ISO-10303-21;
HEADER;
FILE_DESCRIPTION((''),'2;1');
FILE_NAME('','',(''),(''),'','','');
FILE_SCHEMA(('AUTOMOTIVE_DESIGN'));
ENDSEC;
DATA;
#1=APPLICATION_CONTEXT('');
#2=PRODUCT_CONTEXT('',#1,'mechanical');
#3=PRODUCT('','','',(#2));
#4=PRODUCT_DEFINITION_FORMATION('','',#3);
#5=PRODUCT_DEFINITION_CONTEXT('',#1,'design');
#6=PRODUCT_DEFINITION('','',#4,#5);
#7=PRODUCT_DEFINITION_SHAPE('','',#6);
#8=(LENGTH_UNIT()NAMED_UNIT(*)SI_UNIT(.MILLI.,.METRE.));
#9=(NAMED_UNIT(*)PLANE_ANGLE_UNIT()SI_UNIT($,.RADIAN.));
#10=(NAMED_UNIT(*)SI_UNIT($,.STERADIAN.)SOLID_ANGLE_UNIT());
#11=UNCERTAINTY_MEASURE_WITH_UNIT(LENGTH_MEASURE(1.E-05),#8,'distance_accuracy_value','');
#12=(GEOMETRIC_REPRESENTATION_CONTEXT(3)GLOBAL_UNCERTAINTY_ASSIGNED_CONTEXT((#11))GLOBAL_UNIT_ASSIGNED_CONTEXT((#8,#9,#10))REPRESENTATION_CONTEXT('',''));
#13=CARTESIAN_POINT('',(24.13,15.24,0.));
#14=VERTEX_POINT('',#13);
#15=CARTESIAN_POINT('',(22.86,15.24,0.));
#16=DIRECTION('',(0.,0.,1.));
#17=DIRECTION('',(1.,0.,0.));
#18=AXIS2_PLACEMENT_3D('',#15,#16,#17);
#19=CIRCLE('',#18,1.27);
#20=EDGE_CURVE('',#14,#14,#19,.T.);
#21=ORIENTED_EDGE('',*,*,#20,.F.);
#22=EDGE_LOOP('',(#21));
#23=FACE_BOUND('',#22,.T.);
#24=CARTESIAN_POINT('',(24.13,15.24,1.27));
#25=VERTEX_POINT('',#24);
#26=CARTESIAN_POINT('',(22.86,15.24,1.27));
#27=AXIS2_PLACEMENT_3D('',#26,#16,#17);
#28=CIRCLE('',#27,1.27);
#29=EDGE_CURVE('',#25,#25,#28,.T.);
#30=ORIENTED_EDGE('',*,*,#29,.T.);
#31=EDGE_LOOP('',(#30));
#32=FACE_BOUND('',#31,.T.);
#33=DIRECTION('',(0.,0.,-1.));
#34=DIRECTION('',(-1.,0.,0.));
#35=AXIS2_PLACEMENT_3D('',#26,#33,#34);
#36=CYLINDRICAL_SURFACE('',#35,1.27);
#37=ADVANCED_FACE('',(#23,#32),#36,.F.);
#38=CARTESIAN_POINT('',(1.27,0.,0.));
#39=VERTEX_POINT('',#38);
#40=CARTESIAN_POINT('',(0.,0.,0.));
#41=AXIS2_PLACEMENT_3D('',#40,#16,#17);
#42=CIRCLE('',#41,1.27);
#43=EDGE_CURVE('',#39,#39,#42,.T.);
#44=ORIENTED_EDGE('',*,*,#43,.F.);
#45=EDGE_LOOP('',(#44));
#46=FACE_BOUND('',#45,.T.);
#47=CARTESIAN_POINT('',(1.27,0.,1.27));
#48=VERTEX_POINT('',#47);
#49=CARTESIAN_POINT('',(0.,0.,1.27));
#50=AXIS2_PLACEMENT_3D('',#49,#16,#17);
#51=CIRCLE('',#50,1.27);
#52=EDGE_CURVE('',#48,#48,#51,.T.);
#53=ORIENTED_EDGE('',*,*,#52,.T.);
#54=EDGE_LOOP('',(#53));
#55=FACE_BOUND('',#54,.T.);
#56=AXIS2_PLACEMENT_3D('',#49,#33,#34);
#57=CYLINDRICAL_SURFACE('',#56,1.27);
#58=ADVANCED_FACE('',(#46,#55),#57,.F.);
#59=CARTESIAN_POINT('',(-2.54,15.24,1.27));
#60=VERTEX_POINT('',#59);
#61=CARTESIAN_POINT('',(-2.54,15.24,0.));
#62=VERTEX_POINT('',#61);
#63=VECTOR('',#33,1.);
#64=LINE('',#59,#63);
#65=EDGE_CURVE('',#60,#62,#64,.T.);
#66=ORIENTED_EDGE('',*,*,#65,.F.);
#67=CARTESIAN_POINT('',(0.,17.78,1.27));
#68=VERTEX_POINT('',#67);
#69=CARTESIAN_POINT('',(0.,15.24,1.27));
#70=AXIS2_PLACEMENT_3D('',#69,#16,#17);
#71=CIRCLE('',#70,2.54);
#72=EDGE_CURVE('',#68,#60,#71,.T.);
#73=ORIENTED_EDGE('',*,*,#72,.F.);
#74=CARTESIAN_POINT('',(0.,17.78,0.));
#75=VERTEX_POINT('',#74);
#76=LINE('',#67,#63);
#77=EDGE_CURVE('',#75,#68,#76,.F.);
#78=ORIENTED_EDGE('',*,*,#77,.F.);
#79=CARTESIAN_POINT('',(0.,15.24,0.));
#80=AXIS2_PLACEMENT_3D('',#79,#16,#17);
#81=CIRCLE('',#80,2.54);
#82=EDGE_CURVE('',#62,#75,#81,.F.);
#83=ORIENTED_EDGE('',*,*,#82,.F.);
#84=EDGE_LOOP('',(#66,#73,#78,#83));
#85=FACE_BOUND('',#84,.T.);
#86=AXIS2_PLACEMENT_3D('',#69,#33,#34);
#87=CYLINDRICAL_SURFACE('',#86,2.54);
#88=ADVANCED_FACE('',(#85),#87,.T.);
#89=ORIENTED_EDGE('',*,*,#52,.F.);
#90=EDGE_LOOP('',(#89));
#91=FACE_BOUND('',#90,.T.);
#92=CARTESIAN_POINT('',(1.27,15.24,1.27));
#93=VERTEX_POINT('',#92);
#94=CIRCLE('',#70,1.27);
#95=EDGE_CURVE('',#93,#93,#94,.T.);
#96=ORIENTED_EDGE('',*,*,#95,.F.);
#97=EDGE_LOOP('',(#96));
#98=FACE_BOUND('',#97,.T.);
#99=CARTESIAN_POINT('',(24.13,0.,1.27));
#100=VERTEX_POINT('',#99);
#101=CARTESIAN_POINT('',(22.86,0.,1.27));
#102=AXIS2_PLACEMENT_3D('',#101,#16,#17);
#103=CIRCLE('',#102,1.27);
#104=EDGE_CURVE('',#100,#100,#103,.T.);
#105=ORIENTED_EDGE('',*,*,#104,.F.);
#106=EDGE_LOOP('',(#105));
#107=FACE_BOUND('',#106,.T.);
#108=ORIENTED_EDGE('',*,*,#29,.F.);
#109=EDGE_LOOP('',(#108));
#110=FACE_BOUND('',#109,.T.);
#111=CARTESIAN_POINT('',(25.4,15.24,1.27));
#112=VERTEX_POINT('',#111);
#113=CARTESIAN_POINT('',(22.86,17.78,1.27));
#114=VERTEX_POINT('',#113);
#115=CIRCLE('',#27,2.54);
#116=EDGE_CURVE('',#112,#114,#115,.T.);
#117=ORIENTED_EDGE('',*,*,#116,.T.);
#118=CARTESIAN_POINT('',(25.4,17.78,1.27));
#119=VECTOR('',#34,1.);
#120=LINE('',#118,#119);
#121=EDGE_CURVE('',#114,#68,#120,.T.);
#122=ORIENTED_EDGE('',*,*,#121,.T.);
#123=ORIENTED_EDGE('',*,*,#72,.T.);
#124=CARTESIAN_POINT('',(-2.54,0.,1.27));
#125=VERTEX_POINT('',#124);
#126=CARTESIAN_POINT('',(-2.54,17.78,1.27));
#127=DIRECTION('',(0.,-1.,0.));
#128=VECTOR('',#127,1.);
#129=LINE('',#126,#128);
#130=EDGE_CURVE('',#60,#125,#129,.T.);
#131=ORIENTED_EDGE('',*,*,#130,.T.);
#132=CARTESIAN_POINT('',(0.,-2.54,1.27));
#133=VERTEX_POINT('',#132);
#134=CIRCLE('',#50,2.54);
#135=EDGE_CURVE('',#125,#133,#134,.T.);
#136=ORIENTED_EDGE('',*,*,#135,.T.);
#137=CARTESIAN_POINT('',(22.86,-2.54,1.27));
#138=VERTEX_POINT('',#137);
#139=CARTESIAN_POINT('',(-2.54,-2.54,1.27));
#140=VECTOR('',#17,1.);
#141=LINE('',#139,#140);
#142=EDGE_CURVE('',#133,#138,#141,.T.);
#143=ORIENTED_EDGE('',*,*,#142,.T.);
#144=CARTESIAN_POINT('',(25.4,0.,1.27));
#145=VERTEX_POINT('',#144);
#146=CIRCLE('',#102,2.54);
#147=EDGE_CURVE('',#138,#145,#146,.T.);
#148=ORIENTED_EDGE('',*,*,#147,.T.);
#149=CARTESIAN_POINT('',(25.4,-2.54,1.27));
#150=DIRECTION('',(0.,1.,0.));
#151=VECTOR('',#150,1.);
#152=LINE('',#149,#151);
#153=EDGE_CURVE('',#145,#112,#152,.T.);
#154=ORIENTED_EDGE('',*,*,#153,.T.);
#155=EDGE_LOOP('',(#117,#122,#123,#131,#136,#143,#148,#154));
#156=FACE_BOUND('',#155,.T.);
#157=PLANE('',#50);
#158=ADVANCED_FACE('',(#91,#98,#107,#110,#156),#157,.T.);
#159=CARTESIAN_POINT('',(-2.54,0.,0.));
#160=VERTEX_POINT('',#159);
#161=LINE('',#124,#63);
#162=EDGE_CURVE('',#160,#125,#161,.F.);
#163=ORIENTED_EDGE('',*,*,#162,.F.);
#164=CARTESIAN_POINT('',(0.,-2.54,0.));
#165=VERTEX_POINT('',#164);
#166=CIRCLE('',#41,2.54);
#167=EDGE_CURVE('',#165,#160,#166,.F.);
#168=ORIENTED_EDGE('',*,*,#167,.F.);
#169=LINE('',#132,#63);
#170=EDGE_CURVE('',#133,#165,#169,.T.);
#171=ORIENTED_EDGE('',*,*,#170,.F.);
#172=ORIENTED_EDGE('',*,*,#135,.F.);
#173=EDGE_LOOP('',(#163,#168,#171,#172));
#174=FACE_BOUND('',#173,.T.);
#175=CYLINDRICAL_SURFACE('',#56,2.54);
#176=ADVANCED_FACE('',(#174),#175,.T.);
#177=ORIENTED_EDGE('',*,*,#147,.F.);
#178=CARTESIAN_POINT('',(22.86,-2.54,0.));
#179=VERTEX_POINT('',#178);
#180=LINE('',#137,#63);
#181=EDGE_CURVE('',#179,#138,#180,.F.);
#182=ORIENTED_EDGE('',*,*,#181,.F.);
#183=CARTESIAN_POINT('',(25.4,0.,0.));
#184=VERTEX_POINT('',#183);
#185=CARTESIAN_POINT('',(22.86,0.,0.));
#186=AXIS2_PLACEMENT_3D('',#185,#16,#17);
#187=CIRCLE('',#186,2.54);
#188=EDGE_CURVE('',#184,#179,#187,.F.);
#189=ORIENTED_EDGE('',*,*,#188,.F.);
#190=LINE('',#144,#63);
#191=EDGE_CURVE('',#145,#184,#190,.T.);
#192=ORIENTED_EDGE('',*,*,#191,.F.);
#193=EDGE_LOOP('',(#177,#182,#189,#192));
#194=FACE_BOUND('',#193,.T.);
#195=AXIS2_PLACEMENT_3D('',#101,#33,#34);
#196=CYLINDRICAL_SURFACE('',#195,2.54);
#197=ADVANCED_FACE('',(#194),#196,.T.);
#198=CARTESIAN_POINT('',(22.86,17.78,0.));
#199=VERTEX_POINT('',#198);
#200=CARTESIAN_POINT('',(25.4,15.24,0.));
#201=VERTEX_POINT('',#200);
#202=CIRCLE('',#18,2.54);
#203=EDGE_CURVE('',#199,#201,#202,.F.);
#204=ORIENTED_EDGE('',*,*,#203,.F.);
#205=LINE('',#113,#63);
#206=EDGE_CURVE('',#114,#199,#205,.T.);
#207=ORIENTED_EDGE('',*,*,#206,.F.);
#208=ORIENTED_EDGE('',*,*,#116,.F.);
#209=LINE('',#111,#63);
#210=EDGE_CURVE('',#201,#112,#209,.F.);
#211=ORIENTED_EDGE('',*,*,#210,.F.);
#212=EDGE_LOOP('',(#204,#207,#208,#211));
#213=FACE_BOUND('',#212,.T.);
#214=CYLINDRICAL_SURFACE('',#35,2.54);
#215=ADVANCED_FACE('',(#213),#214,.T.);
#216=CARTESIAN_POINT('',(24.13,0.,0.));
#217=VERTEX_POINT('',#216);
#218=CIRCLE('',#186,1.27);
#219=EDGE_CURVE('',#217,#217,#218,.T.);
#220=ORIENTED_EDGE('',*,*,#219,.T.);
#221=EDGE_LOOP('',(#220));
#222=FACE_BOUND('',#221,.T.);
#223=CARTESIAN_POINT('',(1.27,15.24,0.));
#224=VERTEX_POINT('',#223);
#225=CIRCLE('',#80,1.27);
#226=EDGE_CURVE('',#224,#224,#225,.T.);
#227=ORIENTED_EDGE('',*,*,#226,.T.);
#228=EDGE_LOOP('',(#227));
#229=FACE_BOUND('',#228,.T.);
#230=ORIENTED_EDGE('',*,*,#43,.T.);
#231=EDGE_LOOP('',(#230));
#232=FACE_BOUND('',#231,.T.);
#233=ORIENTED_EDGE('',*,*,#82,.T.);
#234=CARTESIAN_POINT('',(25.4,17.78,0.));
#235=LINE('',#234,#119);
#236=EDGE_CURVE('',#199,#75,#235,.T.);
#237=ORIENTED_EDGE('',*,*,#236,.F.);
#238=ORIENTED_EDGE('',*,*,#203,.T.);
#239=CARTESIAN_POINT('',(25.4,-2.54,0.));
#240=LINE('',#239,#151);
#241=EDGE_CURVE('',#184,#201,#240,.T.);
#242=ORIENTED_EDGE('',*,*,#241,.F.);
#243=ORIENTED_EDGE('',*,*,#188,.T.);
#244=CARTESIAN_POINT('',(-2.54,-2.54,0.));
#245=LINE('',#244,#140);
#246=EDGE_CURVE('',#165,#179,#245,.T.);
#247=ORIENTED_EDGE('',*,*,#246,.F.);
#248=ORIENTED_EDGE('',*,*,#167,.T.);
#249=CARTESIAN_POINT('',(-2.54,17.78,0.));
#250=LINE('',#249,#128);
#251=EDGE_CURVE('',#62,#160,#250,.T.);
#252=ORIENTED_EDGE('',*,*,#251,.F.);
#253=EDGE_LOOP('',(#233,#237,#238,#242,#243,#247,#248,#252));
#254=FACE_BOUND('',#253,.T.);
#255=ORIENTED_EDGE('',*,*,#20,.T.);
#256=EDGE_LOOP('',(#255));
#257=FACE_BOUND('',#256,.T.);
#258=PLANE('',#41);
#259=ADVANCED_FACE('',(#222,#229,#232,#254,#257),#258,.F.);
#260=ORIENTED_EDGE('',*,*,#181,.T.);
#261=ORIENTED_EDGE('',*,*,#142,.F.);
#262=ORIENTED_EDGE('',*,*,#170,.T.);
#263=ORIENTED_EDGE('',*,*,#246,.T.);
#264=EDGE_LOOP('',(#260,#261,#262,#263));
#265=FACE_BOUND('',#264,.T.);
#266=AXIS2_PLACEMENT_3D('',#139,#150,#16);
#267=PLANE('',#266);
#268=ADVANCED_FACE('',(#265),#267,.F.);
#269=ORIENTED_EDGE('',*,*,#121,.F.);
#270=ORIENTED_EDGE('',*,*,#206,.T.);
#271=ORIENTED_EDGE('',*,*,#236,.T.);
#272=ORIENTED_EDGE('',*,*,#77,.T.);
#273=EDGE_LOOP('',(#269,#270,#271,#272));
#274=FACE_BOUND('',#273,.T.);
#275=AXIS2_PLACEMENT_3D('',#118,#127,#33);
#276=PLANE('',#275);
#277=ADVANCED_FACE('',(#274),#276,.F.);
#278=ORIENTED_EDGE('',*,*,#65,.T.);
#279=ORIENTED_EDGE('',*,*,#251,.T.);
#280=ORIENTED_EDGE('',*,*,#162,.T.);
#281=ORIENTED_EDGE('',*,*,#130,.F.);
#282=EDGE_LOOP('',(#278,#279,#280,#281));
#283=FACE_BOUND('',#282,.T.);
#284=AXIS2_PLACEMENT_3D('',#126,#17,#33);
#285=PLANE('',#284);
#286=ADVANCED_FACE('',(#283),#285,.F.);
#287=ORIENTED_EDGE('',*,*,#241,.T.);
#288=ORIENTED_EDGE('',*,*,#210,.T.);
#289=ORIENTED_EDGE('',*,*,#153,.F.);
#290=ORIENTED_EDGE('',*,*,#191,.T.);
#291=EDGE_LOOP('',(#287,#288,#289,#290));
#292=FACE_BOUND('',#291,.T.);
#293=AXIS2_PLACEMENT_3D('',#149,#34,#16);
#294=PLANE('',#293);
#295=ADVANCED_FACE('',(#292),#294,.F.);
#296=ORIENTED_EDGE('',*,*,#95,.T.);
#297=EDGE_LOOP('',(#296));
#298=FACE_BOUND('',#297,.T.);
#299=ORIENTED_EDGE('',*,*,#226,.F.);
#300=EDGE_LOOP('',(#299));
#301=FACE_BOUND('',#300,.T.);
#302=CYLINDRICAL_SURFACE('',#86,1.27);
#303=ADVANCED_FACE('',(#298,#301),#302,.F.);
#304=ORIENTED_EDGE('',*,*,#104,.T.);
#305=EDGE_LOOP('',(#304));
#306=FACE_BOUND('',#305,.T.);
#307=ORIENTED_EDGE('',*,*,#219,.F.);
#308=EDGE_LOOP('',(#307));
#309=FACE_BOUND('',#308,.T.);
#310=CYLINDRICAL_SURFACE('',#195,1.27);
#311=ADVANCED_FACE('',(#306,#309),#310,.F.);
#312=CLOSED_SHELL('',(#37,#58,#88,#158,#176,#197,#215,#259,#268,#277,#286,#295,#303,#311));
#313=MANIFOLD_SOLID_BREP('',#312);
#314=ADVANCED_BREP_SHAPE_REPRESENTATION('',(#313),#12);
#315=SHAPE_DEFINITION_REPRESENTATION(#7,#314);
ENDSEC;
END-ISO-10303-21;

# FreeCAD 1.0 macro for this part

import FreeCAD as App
import Part
import Sketcher
Q = App.Units.Quantity


def edges_at(feature, points):
    """Names of the edges that pass closest to the given points."""
    edges = feature.Shape.Edges
    near = lambda p: min(range(len(edges)), key=lambda i: edges[i].distToShape(Part.Vertex(*p))[0])
    return sorted({f"Edge{near(p) + 1}" for p in points})


def add_polygon(sketch, points):
    """Adds a closed chain of lines whose ends are joined by coincident constraints."""
    first, n = sketch.GeometryCount, len(points)
    for a, b in zip(points, points[1:] + points[:1]):
        sketch.addGeometry(Part.LineSegment(App.Vector(*a, 0), App.Vector(*b, 0)), False)
    for i in range(n):
        sketch.addConstraint(Sketcher.Constraint("Coincident", first + i, 2, first + (i + 1) % n, 1))

doc = App.newDocument("Part")
body = doc.addObject("PartDesign::Body", "Body")

sketch1 = doc.addObject("Sketcher::SketchObject", "Sketch")
body.addObject(sketch1)
sketch1.AttachmentSupport = (doc.XY_Plane, [""])
sketch1.MapMode = "FlatFace"
add_polygon(sketch1, [(-2.5, 17.8), (-2.5, -2.5), (25.4, -2.5), (25.4, 17.8)])
sketch1.addGeometry(Part.Circle(App.Vector(0, 0, 0), App.Vector(0, 0, 1), 1.3), False)
sketch1.addGeometry(Part.Circle(App.Vector(22.9, 0, 0), App.Vector(0, 0, 1), 1.3), False)
sketch1.addGeometry(Part.Circle(App.Vector(0, 15.2, 0), App.Vector(0, 0, 1), 1.3), False)
sketch1.addGeometry(Part.Circle(App.Vector(22.9, 15.2, 0), App.Vector(0, 0, 1), 1.3), False)
sketch1.addConstraint([
    Sketcher.Constraint("Vertical", 0),
    Sketcher.Constraint("Horizontal", 1),
    Sketcher.Constraint("Vertical", 2),
    Sketcher.Constraint("Horizontal", 3),
    Sketcher.Constraint("Coincident", 4, 3, -1, 1),
    Sketcher.Constraint("Equal", 4, 5),
    Sketcher.Constraint("Equal", 5, 6),
    Sketcher.Constraint("Equal", 6, 7),
    Sketcher.Constraint("PointOnObject", 5, 3, -1),
    Sketcher.Constraint("PointOnObject", 6, 3, -2),
    Sketcher.Constraint("Horizontal", 6, 3, 7, 3),
    Sketcher.Constraint("Vertical", 5, 3, 7, 3),
    Sketcher.Constraint("Diameter", 4, Q("0.1 in")),
    Sketcher.Constraint("DistanceX", 1, 1, 1, 2, Q("1.1 in")),
    Sketcher.Constraint("DistanceY", 0, 2, 0, 1, Q("0.8 in")),
    Sketcher.Constraint("DistanceX", -1, 1, 1, 2, Q("1 in")),
    Sketcher.Constraint("DistanceX", 0, 2, 5, 3, Q("1 in")),
    Sketcher.Constraint("DistanceY", -1, 1, 6, 3, Q("0.6 in")),
    Sketcher.Constraint("DistanceY", 0, 2, -1, 1, Q("0.1 in")),
])
pad1 = doc.addObject("PartDesign::Pad", "Pad")
body.addObject(pad1)
pad1.Profile = sketch1
pad1.Length = Q("0.05 in")
doc.recompute()

fillet = doc.addObject("PartDesign::Fillet", "Fillet")
body.addObject(fillet)
fillet.Base = (pad1, edges_at(pad1, [
    (25.4, 17.78, 0.635),
    (25.4, -2.54, 0.635),
    (-2.54, -2.54, 0.635),
    (-2.54, 17.78, 0.635),
]))
fillet.Radius = Q("0.1 in")

doc.recompute()
